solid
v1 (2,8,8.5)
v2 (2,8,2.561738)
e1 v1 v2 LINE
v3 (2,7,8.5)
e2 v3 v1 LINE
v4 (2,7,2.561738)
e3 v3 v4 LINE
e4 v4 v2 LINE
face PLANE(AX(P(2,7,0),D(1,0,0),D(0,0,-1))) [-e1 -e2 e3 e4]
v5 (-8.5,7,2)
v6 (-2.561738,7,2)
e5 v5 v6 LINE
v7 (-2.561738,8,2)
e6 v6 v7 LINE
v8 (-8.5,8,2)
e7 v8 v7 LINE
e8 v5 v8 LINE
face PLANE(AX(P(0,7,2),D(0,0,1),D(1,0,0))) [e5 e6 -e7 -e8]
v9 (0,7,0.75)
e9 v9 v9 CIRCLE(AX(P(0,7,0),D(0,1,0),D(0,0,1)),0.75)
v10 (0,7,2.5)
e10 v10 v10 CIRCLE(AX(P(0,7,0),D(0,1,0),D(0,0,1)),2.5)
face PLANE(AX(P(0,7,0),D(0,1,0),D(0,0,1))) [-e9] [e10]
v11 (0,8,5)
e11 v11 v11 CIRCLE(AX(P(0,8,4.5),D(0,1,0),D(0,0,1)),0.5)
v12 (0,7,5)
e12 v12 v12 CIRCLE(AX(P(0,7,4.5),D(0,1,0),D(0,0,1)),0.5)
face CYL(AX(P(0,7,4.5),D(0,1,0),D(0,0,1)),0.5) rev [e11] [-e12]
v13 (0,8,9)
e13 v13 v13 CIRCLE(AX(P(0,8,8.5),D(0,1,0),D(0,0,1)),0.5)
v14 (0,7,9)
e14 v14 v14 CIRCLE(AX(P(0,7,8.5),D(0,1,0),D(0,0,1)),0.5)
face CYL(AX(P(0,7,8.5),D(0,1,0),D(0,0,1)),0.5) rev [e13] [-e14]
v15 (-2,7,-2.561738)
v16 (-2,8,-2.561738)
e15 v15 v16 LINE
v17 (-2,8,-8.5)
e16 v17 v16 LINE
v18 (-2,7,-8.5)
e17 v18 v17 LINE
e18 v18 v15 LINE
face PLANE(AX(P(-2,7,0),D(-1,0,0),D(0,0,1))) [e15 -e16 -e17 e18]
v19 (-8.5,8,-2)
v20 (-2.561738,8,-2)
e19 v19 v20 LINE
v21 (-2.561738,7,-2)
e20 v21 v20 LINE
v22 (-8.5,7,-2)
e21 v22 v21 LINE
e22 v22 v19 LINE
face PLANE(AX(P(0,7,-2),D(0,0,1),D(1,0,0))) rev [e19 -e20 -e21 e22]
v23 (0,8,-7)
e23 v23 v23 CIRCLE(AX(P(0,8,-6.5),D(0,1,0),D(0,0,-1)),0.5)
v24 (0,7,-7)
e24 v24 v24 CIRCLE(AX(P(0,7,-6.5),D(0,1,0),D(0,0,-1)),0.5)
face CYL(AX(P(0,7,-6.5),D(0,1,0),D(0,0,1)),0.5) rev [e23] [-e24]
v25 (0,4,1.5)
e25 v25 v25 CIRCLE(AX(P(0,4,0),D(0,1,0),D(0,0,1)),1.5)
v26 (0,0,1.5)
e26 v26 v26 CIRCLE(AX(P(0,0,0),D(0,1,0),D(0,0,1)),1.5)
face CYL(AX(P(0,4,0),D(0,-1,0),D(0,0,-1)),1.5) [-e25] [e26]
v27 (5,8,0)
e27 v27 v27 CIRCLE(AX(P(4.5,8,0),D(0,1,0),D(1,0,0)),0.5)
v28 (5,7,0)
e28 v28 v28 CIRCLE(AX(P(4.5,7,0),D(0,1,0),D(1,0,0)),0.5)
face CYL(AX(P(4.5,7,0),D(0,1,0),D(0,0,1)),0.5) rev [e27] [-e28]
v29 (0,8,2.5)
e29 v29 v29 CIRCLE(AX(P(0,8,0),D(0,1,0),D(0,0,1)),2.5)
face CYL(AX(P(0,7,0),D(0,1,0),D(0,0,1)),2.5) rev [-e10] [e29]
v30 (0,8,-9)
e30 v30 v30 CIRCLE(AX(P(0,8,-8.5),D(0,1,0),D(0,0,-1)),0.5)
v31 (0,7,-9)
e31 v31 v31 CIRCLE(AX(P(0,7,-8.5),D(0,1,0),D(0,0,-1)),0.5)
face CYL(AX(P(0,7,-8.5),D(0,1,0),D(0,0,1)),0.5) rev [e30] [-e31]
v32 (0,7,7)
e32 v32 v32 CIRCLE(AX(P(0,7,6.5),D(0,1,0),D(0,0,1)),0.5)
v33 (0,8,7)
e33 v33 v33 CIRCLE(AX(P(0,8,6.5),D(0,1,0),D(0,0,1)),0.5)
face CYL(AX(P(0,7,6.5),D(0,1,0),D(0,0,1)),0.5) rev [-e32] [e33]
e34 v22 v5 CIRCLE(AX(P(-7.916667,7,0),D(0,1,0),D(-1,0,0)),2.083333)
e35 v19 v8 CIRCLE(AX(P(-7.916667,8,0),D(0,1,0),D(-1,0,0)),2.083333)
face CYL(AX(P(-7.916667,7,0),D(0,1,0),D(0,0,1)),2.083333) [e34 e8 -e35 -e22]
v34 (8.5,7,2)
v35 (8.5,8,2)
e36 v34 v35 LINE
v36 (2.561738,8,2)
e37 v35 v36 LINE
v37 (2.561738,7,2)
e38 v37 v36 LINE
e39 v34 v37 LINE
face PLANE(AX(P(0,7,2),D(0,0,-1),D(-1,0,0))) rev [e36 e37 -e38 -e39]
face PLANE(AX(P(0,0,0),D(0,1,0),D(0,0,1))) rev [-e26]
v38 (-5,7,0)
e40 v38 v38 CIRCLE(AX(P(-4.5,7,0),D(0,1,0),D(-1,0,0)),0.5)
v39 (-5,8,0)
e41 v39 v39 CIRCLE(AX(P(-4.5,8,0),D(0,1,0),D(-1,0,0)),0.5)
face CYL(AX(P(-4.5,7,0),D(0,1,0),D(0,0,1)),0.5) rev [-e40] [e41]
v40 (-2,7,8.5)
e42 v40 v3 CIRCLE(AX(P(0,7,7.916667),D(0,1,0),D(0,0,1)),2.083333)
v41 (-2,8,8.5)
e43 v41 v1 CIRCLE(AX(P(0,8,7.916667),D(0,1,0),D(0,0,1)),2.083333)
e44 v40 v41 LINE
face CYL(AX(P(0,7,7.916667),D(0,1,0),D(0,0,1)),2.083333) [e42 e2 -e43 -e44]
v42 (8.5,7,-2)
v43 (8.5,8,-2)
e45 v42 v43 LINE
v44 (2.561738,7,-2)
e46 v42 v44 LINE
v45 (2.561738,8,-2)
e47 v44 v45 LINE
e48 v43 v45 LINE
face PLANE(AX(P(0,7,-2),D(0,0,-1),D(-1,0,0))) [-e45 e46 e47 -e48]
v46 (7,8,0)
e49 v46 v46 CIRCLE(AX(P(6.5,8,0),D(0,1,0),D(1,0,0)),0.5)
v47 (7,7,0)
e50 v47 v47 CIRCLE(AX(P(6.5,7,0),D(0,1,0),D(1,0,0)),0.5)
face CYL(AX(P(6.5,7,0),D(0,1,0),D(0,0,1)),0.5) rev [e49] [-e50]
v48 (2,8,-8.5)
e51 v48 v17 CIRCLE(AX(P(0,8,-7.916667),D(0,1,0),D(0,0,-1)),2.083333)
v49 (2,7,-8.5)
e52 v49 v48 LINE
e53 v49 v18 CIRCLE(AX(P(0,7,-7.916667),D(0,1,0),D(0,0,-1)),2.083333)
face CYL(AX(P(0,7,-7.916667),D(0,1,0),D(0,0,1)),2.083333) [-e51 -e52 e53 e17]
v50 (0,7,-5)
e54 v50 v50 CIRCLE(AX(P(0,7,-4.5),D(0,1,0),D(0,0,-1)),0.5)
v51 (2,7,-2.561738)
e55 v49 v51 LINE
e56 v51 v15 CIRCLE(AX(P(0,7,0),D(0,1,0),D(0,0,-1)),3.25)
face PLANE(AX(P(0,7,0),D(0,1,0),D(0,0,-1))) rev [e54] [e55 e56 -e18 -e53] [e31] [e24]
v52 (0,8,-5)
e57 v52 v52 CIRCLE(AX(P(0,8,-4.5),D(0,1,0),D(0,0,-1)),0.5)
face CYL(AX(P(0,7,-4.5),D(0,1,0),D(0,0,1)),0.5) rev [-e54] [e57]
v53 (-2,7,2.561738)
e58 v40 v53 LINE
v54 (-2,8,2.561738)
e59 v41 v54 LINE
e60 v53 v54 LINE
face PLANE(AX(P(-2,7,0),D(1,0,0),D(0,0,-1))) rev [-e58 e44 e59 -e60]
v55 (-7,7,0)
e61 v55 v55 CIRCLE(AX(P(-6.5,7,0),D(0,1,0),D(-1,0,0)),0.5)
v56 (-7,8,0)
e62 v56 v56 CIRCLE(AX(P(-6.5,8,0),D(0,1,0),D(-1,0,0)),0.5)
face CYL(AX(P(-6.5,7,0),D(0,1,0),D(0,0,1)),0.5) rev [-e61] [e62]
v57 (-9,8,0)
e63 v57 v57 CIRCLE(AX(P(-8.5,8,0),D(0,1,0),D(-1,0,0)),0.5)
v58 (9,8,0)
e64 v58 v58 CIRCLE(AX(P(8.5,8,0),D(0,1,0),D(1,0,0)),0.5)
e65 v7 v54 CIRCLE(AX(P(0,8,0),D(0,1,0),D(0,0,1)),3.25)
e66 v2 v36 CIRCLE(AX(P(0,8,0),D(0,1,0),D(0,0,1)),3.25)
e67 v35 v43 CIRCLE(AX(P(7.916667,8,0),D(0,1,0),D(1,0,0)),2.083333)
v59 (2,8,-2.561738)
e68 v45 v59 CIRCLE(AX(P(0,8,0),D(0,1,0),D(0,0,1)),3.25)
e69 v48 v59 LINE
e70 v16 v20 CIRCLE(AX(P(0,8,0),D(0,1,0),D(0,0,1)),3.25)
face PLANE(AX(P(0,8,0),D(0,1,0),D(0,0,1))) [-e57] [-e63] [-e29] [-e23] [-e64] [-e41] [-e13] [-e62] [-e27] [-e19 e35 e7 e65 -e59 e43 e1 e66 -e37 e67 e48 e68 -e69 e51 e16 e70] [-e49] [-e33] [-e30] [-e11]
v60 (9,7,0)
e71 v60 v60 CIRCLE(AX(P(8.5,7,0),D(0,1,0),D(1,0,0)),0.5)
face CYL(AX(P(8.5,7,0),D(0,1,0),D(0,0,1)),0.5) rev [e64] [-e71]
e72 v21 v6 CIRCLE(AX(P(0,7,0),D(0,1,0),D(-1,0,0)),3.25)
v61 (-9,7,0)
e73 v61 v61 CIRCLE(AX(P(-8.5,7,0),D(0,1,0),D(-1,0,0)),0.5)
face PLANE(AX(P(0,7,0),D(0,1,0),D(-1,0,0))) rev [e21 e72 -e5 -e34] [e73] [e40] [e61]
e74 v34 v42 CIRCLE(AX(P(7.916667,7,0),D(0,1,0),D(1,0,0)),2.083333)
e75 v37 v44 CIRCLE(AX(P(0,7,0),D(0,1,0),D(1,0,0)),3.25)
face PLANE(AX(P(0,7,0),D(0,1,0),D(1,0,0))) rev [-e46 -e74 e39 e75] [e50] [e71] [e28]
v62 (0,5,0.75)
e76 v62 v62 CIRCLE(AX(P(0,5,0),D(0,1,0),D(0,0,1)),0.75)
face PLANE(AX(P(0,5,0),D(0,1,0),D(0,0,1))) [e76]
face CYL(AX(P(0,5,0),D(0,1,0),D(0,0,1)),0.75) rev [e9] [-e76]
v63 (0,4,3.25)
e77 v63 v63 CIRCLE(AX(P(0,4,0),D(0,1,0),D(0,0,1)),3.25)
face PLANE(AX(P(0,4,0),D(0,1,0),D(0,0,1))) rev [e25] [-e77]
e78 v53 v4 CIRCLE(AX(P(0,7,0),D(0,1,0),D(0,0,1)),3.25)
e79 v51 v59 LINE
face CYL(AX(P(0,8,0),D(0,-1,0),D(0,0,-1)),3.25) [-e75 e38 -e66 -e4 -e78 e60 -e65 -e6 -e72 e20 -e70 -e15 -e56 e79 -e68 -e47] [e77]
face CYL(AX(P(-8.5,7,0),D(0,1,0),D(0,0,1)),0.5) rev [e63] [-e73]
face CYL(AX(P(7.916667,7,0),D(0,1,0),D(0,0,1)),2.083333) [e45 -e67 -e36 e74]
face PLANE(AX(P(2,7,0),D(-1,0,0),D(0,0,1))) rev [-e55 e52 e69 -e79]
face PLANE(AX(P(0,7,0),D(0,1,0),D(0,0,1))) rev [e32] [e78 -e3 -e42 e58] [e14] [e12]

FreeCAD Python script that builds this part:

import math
import FreeCAD as App
import Part
import Sketcher

V = App.Vector

doc = App.newDocument("Part")
params = doc.addObject("Spreadsheet::Sheet", "Params")
for row, (alias, value) in enumerate([
    ("sketch1_diameter", "3 mm"),
    ("pad1_length", "4 mm"),
    ("sketch2_diameter", "6.5 mm"),
    ("pad2_length", "4 mm"),
    ("sketch3_radius", "3.25 mm"),
    ("pad3_length", "1 mm"),
    ("sketch4_diameter", "1 mm"),
    ("pocket1_length", "1 mm"),
    ("linearpattern_pitch", "2 mm"),
    ("sketch5_diameter", "1 mm"),
    ("pocket2_length", "1 mm"),
    ("sketch6_diameter", "1 mm"),
    ("pocket3_length", "1 mm"),
    ("sketch7_diameter", "1 mm"),
    ("pocket4_length", "1 mm"),
    ("sketch8_diameter", "1 mm"),
    ("pocket5_length", "1 mm"),
    ("sketch9_diameter", "1 mm"),
    ("pocket6_length", "1 mm"),
    ("sketch10_diameter", "1 mm"),
    ("pocket7_length", "1 mm"),
    ("sketch11_diameter", "5 mm"),
    ("pocket8_length", "1 mm"),
    ("sketch12_diameter", "1.5 mm"),
    ("pocket9_length", "2 mm"),
], start=1):
    params.set(f"A{row}", alias)
    params.set(f"B{row}", "=" + value)
    params.setAlias(f"B{row}", alias)

body = doc.addObject("PartDesign::Body", "Body")

sketch1 = doc.addObject("Sketcher::SketchObject", "Sketch")
body.addObject(sketch1)
sketch1.AttachmentSupport = (doc.XZ_Plane, [""])
sketch1.MapMode = "FlatFace"
sketch1.addGeometry(Part.Circle(V(0, 0, 0), V(0, 0, 1), 1.5), False)
sketch1.addConstraint([
    Sketcher.Constraint("Coincident", 0, 3, -1, 1),
    Sketcher.Constraint("Diameter", 0, 3.0),
])
sketch1.setExpression("Constraints[1]", "Params.sketch1_diameter")
pad1 = doc.addObject("PartDesign::Pad", "Pad")
body.addObject(pad1)
pad1.Profile = sketch1
pad1.setExpression("Length", "Params.pad1_length")
pad1.Reversed = True

sketch2 = doc.addObject("Sketcher::SketchObject", "Sketch001")
body.addObject(sketch2)
sketch2.AttachmentSupport = (doc.XZ_Plane, [""])
sketch2.MapMode = "FlatFace"
sketch2.AttachmentOffset = App.Placement(V(0, 0, -4), App.Rotation())
sketch2.addGeometry(Part.Circle(V(0, 0, 0), V(0, 0, 1), 3.2), False)
sketch2.addConstraint([
    Sketcher.Constraint("Coincident", 0, 3, -1, 1),
    Sketcher.Constraint("Diameter", 0, 6.5),
])
sketch2.setExpression("Constraints[1]", "Params.sketch2_diameter")
pad2 = doc.addObject("PartDesign::Pad", "Pad001")
body.addObject(pad2)
pad2.Profile = sketch2
pad2.setExpression("Length", "Params.pad2_length")
pad2.Reversed = True

sketch3 = doc.addObject("Sketcher::SketchObject", "Sketch002")
body.addObject(sketch3)
sketch3.AttachmentSupport = (doc.XZ_Plane, [""])
sketch3.MapMode = "FlatFace"
sketch3.AttachmentOffset = App.Placement(V(0, 0, -7), App.Rotation())
sketch3.addGeometry([
    Part.ArcOfCircle(Part.Circle(V(0, 7.9, 0), V(0, 0, 1), 2.1), math.radians(90), math.radians(164)),
    Part.ArcOfCircle(Part.Circle(V(0, 7.9, 0), V(0, 0, 1), 2.1), math.radians(16), math.radians(90)),
    Part.LineSegment(V(2, 8.5, 0), V(2, 2.6, 0)),
    Part.ArcOfCircle(Part.Circle(V(0, 0, 0), V(0, 0, 1), 3.2), math.radians(52), math.radians(128)),
    Part.LineSegment(V(-2, 2.6, 0), V(-2, 8.5, 0)),
], False)
sketch3.addConstraint([
    Sketcher.Constraint("Tangent", 0, 1, 1, 2),
    Sketcher.Constraint("Coincident", 1, 1, 2, 1),
    Sketcher.Constraint("Coincident", 2, 2, 3, 1),
    Sketcher.Constraint("Coincident", 3, 2, 4, 1),
    Sketcher.Constraint("Coincident", 4, 2, 0, 2),
    Sketcher.Constraint("Vertical", 2),
    Sketcher.Constraint("Vertical", 4),
    Sketcher.Constraint("Coincident", 3, 3, -1, 1),
    Sketcher.Constraint("Equal", 0, 1),
    Sketcher.Constraint("Symmetric", 1, 1, 4, 2, -2),
    Sketcher.Constraint("PointOnObject", 0, 1, -2),
    Sketcher.Constraint("Radius", 3, 3.25),
    Sketcher.Constraint("DistanceY", -1, 1, 0, 1, 10.0),
    Sketcher.Constraint("DistanceX", -1, 1, 1, 1, 2.0),
    Sketcher.Constraint("DistanceY", -1, 1, 1, 1, 8.5),
])
sketch3.setExpression("Constraints[11]", "Params.sketch3_radius")
pad3 = doc.addObject("PartDesign::Pad", "Pad002")
body.addObject(pad3)
pad3.Profile = sketch3
pad3.setExpression("Length", "Params.pad3_length")
pad3.Reversed = True
doc.recompute()

polarpattern = doc.addObject("PartDesign::PolarPattern", "PolarPattern")
body.addObject(polarpattern)
polarpattern.Originals = [pad3]
polarpattern.Axis = (doc.Y_Axis, [""])
polarpattern.Angle = 360
polarpattern.Occurrences = 4
body.Tip = polarpattern

sketch4 = doc.addObject("Sketcher::SketchObject", "Sketch003")
body.addObject(sketch4)
sketch4.AttachmentSupport = (doc.XZ_Plane, [""])
sketch4.MapMode = "FlatFace"
sketch4.AttachmentOffset = App.Placement(V(0, 0, -8), App.Rotation())
sketch4.addGeometry(Part.Circle(V(0, 8.5, 0), V(0, 0, 1), 0.5), False)
sketch4.addConstraint([
    Sketcher.Constraint("PointOnObject", 0, 3, -2),
    Sketcher.Constraint("Diameter", 0, 1.0),
    Sketcher.Constraint("DistanceY", -1, 1, 0, 3, 8.5),
])
sketch4.setExpression("Constraints[1]", "Params.sketch4_diameter")
pocket1 = doc.addObject("PartDesign::Pocket", "Pocket")
body.addObject(pocket1)
pocket1.Profile = sketch4
pocket1.setExpression("Length", "Params.pocket1_length")
pocket1.Reversed = True
doc.recompute()

linearpattern = doc.addObject("PartDesign::LinearPattern", "LinearPattern")
body.addObject(linearpattern)
linearpattern.Originals = [pocket1]
linearpattern.Direction = (doc.Z_Axis, [""])
linearpattern.Mode = "offset"
linearpattern.setExpression("Offset", "Params.linearpattern_pitch")
linearpattern.Occurrences = 3
linearpattern.Reversed = True
body.Tip = linearpattern
doc.recompute()

polarpattern2 = doc.addObject("PartDesign::PolarPattern", "PolarPattern001")
body.addObject(polarpattern2)
polarpattern2.Originals = [pocket1]
polarpattern2.Axis = (doc.Y_Axis, [""])
polarpattern2.Angle = 360
polarpattern2.Occurrences = 4
body.Tip = polarpattern2

sketch5 = doc.addObject("Sketcher::SketchObject", "Sketch004")
body.addObject(sketch5)
sketch5.AttachmentSupport = (doc.XZ_Plane, [""])
sketch5.MapMode = "FlatFace"
sketch5.AttachmentOffset = App.Placement(V(0, 0, -8), App.Rotation())
sketch5.addGeometry(Part.Circle(V(6.5, 0, 0), V(0, 0, 1), 0.5), False)
sketch5.addConstraint([
    Sketcher.Constraint("PointOnObject", 0, 3, -1),
    Sketcher.Constraint("Diameter", 0, 1.0),
    Sketcher.Constraint("DistanceX", -1, 1, 0, 3, 6.5),
])
sketch5.setExpression("Constraints[1]", "Params.sketch5_diameter")
pocket2 = doc.addObject("PartDesign::Pocket", "Pocket001")
body.addObject(pocket2)
pocket2.Profile = sketch5
pocket2.setExpression("Length", "Params.pocket2_length")
pocket2.Reversed = True

sketch6 = doc.addObject("Sketcher::SketchObject", "Sketch005")
body.addObject(sketch6)
sketch6.AttachmentSupport = (doc.XZ_Plane, [""])
sketch6.MapMode = "FlatFace"
sketch6.AttachmentOffset = App.Placement(V(0, 0, -8), App.Rotation())
sketch6.addGeometry(Part.Circle(V(0, -6.5, 0), V(0, 0, 1), 0.5), False)
sketch6.addConstraint([
    Sketcher.Constraint("PointOnObject", 0, 3, -2),
    Sketcher.Constraint("Diameter", 0, 1.0),
    Sketcher.Constraint("DistanceY", 0, 3, -1, 1, 6.5),
])
sketch6.setExpression("Constraints[1]", "Params.sketch6_diameter")
pocket3 = doc.addObject("PartDesign::Pocket", "Pocket002")
body.addObject(pocket3)
pocket3.Profile = sketch6
pocket3.setExpression("Length", "Params.pocket3_length")
pocket3.Reversed = True

sketch7 = doc.addObject("Sketcher::SketchObject", "Sketch006")
body.addObject(sketch7)
sketch7.AttachmentSupport = (doc.XZ_Plane, [""])
sketch7.MapMode = "FlatFace"
sketch7.AttachmentOffset = App.Placement(V(0, 0, -8), App.Rotation())
sketch7.addGeometry(Part.Circle(V(-6.5, 0, 0), V(0, 0, 1), 0.5), False)
sketch7.addConstraint([
    Sketcher.Constraint("PointOnObject", 0, 3, -1),
    Sketcher.Constraint("Diameter", 0, 1.0),
    Sketcher.Constraint("DistanceX", 0, 3, -1, 1, 6.5),
])
sketch7.setExpression("Constraints[1]", "Params.sketch7_diameter")
pocket4 = doc.addObject("PartDesign::Pocket", "Pocket003")
body.addObject(pocket4)
pocket4.Profile = sketch7
pocket4.setExpression("Length", "Params.pocket4_length")
pocket4.Reversed = True

sketch8 = doc.addObject("Sketcher::SketchObject", "Sketch007")
body.addObject(sketch8)
sketch8.AttachmentSupport = (doc.XZ_Plane, [""])
sketch8.MapMode = "FlatFace"
sketch8.AttachmentOffset = App.Placement(V(0, 0, -8), App.Rotation())
sketch8.addGeometry(Part.Circle(V(4.5, 0, 0), V(0, 0, 1), 0.5), False)
sketch8.addConstraint([
    Sketcher.Constraint("PointOnObject", 0, 3, -1),
    Sketcher.Constraint("Diameter", 0, 1.0),
    Sketcher.Constraint("DistanceX", -1, 1, 0, 3, 4.5),
])
sketch8.setExpression("Constraints[1]", "Params.sketch8_diameter")
pocket5 = doc.addObject("PartDesign::Pocket", "Pocket004")
body.addObject(pocket5)
pocket5.Profile = sketch8
pocket5.setExpression("Length", "Params.pocket5_length")
pocket5.Reversed = True

sketch9 = doc.addObject("Sketcher::SketchObject", "Sketch008")
body.addObject(sketch9)
sketch9.AttachmentSupport = (doc.XZ_Plane, [""])
sketch9.MapMode = "FlatFace"
sketch9.AttachmentOffset = App.Placement(V(0, 0, -8), App.Rotation())
sketch9.addGeometry(Part.Circle(V(0, -4.5, 0), V(0, 0, 1), 0.5), False)
sketch9.addConstraint([
    Sketcher.Constraint("PointOnObject", 0, 3, -2),
    Sketcher.Constraint("Diameter", 0, 1.0),
    Sketcher.Constraint("DistanceY", 0, 3, -1, 1, 4.5),
])
sketch9.setExpression("Constraints[1]", "Params.sketch9_diameter")
pocket6 = doc.addObject("PartDesign::Pocket", "Pocket005")
body.addObject(pocket6)
pocket6.Profile = sketch9
pocket6.setExpression("Length", "Params.pocket6_length")
pocket6.Reversed = True

sketch10 = doc.addObject("Sketcher::SketchObject", "Sketch009")
body.addObject(sketch10)
sketch10.AttachmentSupport = (doc.XZ_Plane, [""])
sketch10.MapMode = "FlatFace"
sketch10.AttachmentOffset = App.Placement(V(0, 0, -8), App.Rotation())
sketch10.addGeometry(Part.Circle(V(-4.5, 0, 0), V(0, 0, 1), 0.5), False)
sketch10.addConstraint([
    Sketcher.Constraint("PointOnObject", 0, 3, -1),
    Sketcher.Constraint("Diameter", 0, 1.0),
    Sketcher.Constraint("DistanceX", 0, 3, -1, 1, 4.5),
])
sketch10.setExpression("Constraints[1]", "Params.sketch10_diameter")
pocket7 = doc.addObject("PartDesign::Pocket", "Pocket006")
body.addObject(pocket7)
pocket7.Profile = sketch10
pocket7.setExpression("Length", "Params.pocket7_length")
pocket7.Reversed = True

sketch11 = doc.addObject("Sketcher::SketchObject", "Sketch010")
body.addObject(sketch11)
sketch11.AttachmentSupport = (doc.XZ_Plane, [""])
sketch11.MapMode = "FlatFace"
sketch11.AttachmentOffset = App.Placement(V(0, 0, -8), App.Rotation())
sketch11.addGeometry(Part.Circle(V(0, 0, 0), V(0, 0, 1), 2.5), False)
sketch11.addConstraint([
    Sketcher.Constraint("Coincident", 0, 3, -1, 1),
    Sketcher.Constraint("Diameter", 0, 5.0),
])
sketch11.setExpression("Constraints[1]", "Params.sketch11_diameter")
pocket8 = doc.addObject("PartDesign::Pocket", "Pocket007")
body.addObject(pocket8)
pocket8.Profile = sketch11
pocket8.setExpression("Length", "Params.pocket8_length")
pocket8.Reversed = True

sketch12 = doc.addObject("Sketcher::SketchObject", "Sketch011")
body.addObject(sketch12)
sketch12.AttachmentSupport = (doc.XZ_Plane, [""])
sketch12.MapMode = "FlatFace"
sketch12.AttachmentOffset = App.Placement(V(0, 0, -7), App.Rotation())
sketch12.addGeometry(Part.Circle(V(0, 0, 0), V(0, 0, 1), 0.8), False)
sketch12.addConstraint([
    Sketcher.Constraint("Coincident", 0, 3, -1, 1),
    Sketcher.Constraint("Diameter", 0, 1.5),
])
sketch12.setExpression("Constraints[1]", "Params.sketch12_diameter")
pocket9 = doc.addObject("PartDesign::Pocket", "Pocket008")
body.addObject(pocket9)
pocket9.Profile = sketch12
pocket9.setExpression("Length", "Params.pocket9_length")
pocket9.Reversed = True

doc.recompute()
